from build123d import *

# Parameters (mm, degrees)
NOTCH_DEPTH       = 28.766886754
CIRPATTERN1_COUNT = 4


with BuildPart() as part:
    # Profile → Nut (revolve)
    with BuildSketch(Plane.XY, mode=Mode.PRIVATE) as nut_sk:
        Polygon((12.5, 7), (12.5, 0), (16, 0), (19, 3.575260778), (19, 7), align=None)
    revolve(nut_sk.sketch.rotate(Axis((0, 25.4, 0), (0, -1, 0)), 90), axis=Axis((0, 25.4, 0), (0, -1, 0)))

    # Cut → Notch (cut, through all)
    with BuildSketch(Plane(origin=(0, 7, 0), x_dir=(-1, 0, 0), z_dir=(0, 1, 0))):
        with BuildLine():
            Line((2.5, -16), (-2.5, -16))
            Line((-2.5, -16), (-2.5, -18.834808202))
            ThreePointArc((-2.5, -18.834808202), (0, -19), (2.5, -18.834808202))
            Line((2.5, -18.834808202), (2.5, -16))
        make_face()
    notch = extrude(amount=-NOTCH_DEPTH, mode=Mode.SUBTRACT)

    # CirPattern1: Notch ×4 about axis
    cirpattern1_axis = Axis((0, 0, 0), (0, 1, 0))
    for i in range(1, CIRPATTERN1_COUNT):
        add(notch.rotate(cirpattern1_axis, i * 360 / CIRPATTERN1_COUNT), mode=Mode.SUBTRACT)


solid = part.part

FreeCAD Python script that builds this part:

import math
import FreeCAD as App
import Part
import Sketcher
Q = App.Units.Quantity

doc = App.newDocument("Part")
body = doc.addObject("PartDesign::Body", "Body")

sketch1 = body.newObject("Sketcher::SketchObject", "Sketch")
sketch1.AttachmentSupport = (doc.getObject("XY_Plane"), [""])
sketch1.MapMode = "FlatFace"
sketch1.addGeometry(Part.LineSegment(App.Vector(12.5, 7, 0), App.Vector(12.5, 0, 0)), False)
sketch1.addGeometry(Part.LineSegment(App.Vector(12.5, 0, 0), App.Vector(16, 0, 0)), False)
sketch1.addGeometry(Part.LineSegment(App.Vector(16, 0, 0), App.Vector(19, 3.575261, 0)), False)
sketch1.addGeometry(Part.LineSegment(App.Vector(19, 3.575261, 0), App.Vector(19, 7, 0)), False)
sketch1.addGeometry(Part.LineSegment(App.Vector(19, 7, 0), App.Vector(12.5, 7, 0)), False)
sketch1.addConstraint(Sketcher.Constraint("Coincident", 0, 2, 1, 1))
sketch1.addConstraint(Sketcher.Constraint("Coincident", 1, 2, 2, 1))
sketch1.addConstraint(Sketcher.Constraint("Coincident", 2, 2, 3, 1))
sketch1.addConstraint(Sketcher.Constraint("Coincident", 3, 2, 4, 1))
sketch1.addConstraint(Sketcher.Constraint("Coincident", 4, 2, 0, 1))
sketch1.addConstraint(Sketcher.Constraint("Vertical", 0))
sketch1.addConstraint(Sketcher.Constraint("Horizontal", 1))
sketch1.addConstraint(Sketcher.Constraint("Vertical", 3))
sketch1.addConstraint(Sketcher.Constraint("Horizontal", 4))
sketch1.addConstraint(Sketcher.Constraint("PointOnObject", 0, 2, -1))
sketch1.addConstraint(Sketcher.Constraint("DistanceY", 0, 2, 0, 1, Q("7 mm")))
sketch1.addConstraint(Sketcher.Constraint("Angle", 2, Q("50 deg")))
sketch1.addConstraint(Sketcher.Constraint("DistanceX", 1, 1, 1, 2, Q("3.5 mm")))
sketch1.addConstraint(Sketcher.Constraint("DistanceX", 4, 2, 4, 1, Q("6.5 mm")))
sketch1.addConstraint(Sketcher.Constraint("DistanceX", -1, 1, 1, 2, Q("16 mm")))
revolution = body.newObject("PartDesign::Revolution", "Revolution")
revolution.Profile = sketch1
revolution.ReferenceAxis = (sketch1, ["V_Axis"])
revolution.Angle = 360

sketch2 = body.newObject("Sketcher::SketchObject", "Sketch001")
sketch2.AttachmentSupport = (doc.getObject("XZ_Plane"), [""])
sketch2.MapMode = "FlatFace"
sketch2.AttachmentOffset = App.Placement(App.Vector(0, 0, -7), App.Rotation())
sketch2.addGeometry(Part.LineSegment(App.Vector(-2.5, -16, 0), App.Vector(2.5, -16, 0)), False)
sketch2.addGeometry(Part.LineSegment(App.Vector(2.5, -16, 0), App.Vector(2.5, -18.834808, 0)), False)
sketch2.addGeometry(Part.ArcOfCircle(Part.Circle(App.Vector(0, 0, 0), App.Vector(0, 0, 1), 19), math.radians(-97.560843), math.radians(-82.439157)), False)
sketch2.addGeometry(Part.LineSegment(App.Vector(-2.5, -18.834808, 0), App.Vector(-2.5, -16, 0)), False)
sketch2.addConstraint(Sketcher.Constraint("Coincident", 0, 2, 1, 1))
sketch2.addConstraint(Sketcher.Constraint("Coincident", 1, 2, 2, 2))
sketch2.addConstraint(Sketcher.Constraint("Coincident", 2, 1, 3, 1))
sketch2.addConstraint(Sketcher.Constraint("Coincident", 3, 2, 0, 1))
sketch2.addConstraint(Sketcher.Constraint("Horizontal", 0))
sketch2.addConstraint(Sketcher.Constraint("Vertical", 1))
sketch2.addConstraint(Sketcher.Constraint("Vertical", 3))
sketch2.addConstraint(Sketcher.Constraint("Coincident", 2, 3, -1, 1))
sketch2.addConstraint(Sketcher.Constraint("Horizontal", 1, 2, 2, 1))
sketch2.addConstraint(Sketcher.Constraint("Radius", 2, Q("19 mm")))
sketch2.addConstraint(Sketcher.Constraint("DistanceX", 0, 1, 0, 2, Q("5 mm")))
sketch2.addConstraint(Sketcher.Constraint("DistanceY", 0, 2, -1, 1, Q("16 mm")))
pocket1 = body.newObject("PartDesign::Pocket", "Pocket")
pocket1.Profile = sketch2
pocket1.Type = "ThroughAll"
pocket1.Reversed = True
doc.recompute()

polarpattern = body.newObject("PartDesign::PolarPattern", "PolarPattern")
polarpattern.Originals = [pocket1]
polarpattern.Axis = (doc.getObject("Y_Axis"), [""])
polarpattern.Angle = 360
polarpattern.Occurrences = 4
body.Tip = polarpattern

doc.recompute()
